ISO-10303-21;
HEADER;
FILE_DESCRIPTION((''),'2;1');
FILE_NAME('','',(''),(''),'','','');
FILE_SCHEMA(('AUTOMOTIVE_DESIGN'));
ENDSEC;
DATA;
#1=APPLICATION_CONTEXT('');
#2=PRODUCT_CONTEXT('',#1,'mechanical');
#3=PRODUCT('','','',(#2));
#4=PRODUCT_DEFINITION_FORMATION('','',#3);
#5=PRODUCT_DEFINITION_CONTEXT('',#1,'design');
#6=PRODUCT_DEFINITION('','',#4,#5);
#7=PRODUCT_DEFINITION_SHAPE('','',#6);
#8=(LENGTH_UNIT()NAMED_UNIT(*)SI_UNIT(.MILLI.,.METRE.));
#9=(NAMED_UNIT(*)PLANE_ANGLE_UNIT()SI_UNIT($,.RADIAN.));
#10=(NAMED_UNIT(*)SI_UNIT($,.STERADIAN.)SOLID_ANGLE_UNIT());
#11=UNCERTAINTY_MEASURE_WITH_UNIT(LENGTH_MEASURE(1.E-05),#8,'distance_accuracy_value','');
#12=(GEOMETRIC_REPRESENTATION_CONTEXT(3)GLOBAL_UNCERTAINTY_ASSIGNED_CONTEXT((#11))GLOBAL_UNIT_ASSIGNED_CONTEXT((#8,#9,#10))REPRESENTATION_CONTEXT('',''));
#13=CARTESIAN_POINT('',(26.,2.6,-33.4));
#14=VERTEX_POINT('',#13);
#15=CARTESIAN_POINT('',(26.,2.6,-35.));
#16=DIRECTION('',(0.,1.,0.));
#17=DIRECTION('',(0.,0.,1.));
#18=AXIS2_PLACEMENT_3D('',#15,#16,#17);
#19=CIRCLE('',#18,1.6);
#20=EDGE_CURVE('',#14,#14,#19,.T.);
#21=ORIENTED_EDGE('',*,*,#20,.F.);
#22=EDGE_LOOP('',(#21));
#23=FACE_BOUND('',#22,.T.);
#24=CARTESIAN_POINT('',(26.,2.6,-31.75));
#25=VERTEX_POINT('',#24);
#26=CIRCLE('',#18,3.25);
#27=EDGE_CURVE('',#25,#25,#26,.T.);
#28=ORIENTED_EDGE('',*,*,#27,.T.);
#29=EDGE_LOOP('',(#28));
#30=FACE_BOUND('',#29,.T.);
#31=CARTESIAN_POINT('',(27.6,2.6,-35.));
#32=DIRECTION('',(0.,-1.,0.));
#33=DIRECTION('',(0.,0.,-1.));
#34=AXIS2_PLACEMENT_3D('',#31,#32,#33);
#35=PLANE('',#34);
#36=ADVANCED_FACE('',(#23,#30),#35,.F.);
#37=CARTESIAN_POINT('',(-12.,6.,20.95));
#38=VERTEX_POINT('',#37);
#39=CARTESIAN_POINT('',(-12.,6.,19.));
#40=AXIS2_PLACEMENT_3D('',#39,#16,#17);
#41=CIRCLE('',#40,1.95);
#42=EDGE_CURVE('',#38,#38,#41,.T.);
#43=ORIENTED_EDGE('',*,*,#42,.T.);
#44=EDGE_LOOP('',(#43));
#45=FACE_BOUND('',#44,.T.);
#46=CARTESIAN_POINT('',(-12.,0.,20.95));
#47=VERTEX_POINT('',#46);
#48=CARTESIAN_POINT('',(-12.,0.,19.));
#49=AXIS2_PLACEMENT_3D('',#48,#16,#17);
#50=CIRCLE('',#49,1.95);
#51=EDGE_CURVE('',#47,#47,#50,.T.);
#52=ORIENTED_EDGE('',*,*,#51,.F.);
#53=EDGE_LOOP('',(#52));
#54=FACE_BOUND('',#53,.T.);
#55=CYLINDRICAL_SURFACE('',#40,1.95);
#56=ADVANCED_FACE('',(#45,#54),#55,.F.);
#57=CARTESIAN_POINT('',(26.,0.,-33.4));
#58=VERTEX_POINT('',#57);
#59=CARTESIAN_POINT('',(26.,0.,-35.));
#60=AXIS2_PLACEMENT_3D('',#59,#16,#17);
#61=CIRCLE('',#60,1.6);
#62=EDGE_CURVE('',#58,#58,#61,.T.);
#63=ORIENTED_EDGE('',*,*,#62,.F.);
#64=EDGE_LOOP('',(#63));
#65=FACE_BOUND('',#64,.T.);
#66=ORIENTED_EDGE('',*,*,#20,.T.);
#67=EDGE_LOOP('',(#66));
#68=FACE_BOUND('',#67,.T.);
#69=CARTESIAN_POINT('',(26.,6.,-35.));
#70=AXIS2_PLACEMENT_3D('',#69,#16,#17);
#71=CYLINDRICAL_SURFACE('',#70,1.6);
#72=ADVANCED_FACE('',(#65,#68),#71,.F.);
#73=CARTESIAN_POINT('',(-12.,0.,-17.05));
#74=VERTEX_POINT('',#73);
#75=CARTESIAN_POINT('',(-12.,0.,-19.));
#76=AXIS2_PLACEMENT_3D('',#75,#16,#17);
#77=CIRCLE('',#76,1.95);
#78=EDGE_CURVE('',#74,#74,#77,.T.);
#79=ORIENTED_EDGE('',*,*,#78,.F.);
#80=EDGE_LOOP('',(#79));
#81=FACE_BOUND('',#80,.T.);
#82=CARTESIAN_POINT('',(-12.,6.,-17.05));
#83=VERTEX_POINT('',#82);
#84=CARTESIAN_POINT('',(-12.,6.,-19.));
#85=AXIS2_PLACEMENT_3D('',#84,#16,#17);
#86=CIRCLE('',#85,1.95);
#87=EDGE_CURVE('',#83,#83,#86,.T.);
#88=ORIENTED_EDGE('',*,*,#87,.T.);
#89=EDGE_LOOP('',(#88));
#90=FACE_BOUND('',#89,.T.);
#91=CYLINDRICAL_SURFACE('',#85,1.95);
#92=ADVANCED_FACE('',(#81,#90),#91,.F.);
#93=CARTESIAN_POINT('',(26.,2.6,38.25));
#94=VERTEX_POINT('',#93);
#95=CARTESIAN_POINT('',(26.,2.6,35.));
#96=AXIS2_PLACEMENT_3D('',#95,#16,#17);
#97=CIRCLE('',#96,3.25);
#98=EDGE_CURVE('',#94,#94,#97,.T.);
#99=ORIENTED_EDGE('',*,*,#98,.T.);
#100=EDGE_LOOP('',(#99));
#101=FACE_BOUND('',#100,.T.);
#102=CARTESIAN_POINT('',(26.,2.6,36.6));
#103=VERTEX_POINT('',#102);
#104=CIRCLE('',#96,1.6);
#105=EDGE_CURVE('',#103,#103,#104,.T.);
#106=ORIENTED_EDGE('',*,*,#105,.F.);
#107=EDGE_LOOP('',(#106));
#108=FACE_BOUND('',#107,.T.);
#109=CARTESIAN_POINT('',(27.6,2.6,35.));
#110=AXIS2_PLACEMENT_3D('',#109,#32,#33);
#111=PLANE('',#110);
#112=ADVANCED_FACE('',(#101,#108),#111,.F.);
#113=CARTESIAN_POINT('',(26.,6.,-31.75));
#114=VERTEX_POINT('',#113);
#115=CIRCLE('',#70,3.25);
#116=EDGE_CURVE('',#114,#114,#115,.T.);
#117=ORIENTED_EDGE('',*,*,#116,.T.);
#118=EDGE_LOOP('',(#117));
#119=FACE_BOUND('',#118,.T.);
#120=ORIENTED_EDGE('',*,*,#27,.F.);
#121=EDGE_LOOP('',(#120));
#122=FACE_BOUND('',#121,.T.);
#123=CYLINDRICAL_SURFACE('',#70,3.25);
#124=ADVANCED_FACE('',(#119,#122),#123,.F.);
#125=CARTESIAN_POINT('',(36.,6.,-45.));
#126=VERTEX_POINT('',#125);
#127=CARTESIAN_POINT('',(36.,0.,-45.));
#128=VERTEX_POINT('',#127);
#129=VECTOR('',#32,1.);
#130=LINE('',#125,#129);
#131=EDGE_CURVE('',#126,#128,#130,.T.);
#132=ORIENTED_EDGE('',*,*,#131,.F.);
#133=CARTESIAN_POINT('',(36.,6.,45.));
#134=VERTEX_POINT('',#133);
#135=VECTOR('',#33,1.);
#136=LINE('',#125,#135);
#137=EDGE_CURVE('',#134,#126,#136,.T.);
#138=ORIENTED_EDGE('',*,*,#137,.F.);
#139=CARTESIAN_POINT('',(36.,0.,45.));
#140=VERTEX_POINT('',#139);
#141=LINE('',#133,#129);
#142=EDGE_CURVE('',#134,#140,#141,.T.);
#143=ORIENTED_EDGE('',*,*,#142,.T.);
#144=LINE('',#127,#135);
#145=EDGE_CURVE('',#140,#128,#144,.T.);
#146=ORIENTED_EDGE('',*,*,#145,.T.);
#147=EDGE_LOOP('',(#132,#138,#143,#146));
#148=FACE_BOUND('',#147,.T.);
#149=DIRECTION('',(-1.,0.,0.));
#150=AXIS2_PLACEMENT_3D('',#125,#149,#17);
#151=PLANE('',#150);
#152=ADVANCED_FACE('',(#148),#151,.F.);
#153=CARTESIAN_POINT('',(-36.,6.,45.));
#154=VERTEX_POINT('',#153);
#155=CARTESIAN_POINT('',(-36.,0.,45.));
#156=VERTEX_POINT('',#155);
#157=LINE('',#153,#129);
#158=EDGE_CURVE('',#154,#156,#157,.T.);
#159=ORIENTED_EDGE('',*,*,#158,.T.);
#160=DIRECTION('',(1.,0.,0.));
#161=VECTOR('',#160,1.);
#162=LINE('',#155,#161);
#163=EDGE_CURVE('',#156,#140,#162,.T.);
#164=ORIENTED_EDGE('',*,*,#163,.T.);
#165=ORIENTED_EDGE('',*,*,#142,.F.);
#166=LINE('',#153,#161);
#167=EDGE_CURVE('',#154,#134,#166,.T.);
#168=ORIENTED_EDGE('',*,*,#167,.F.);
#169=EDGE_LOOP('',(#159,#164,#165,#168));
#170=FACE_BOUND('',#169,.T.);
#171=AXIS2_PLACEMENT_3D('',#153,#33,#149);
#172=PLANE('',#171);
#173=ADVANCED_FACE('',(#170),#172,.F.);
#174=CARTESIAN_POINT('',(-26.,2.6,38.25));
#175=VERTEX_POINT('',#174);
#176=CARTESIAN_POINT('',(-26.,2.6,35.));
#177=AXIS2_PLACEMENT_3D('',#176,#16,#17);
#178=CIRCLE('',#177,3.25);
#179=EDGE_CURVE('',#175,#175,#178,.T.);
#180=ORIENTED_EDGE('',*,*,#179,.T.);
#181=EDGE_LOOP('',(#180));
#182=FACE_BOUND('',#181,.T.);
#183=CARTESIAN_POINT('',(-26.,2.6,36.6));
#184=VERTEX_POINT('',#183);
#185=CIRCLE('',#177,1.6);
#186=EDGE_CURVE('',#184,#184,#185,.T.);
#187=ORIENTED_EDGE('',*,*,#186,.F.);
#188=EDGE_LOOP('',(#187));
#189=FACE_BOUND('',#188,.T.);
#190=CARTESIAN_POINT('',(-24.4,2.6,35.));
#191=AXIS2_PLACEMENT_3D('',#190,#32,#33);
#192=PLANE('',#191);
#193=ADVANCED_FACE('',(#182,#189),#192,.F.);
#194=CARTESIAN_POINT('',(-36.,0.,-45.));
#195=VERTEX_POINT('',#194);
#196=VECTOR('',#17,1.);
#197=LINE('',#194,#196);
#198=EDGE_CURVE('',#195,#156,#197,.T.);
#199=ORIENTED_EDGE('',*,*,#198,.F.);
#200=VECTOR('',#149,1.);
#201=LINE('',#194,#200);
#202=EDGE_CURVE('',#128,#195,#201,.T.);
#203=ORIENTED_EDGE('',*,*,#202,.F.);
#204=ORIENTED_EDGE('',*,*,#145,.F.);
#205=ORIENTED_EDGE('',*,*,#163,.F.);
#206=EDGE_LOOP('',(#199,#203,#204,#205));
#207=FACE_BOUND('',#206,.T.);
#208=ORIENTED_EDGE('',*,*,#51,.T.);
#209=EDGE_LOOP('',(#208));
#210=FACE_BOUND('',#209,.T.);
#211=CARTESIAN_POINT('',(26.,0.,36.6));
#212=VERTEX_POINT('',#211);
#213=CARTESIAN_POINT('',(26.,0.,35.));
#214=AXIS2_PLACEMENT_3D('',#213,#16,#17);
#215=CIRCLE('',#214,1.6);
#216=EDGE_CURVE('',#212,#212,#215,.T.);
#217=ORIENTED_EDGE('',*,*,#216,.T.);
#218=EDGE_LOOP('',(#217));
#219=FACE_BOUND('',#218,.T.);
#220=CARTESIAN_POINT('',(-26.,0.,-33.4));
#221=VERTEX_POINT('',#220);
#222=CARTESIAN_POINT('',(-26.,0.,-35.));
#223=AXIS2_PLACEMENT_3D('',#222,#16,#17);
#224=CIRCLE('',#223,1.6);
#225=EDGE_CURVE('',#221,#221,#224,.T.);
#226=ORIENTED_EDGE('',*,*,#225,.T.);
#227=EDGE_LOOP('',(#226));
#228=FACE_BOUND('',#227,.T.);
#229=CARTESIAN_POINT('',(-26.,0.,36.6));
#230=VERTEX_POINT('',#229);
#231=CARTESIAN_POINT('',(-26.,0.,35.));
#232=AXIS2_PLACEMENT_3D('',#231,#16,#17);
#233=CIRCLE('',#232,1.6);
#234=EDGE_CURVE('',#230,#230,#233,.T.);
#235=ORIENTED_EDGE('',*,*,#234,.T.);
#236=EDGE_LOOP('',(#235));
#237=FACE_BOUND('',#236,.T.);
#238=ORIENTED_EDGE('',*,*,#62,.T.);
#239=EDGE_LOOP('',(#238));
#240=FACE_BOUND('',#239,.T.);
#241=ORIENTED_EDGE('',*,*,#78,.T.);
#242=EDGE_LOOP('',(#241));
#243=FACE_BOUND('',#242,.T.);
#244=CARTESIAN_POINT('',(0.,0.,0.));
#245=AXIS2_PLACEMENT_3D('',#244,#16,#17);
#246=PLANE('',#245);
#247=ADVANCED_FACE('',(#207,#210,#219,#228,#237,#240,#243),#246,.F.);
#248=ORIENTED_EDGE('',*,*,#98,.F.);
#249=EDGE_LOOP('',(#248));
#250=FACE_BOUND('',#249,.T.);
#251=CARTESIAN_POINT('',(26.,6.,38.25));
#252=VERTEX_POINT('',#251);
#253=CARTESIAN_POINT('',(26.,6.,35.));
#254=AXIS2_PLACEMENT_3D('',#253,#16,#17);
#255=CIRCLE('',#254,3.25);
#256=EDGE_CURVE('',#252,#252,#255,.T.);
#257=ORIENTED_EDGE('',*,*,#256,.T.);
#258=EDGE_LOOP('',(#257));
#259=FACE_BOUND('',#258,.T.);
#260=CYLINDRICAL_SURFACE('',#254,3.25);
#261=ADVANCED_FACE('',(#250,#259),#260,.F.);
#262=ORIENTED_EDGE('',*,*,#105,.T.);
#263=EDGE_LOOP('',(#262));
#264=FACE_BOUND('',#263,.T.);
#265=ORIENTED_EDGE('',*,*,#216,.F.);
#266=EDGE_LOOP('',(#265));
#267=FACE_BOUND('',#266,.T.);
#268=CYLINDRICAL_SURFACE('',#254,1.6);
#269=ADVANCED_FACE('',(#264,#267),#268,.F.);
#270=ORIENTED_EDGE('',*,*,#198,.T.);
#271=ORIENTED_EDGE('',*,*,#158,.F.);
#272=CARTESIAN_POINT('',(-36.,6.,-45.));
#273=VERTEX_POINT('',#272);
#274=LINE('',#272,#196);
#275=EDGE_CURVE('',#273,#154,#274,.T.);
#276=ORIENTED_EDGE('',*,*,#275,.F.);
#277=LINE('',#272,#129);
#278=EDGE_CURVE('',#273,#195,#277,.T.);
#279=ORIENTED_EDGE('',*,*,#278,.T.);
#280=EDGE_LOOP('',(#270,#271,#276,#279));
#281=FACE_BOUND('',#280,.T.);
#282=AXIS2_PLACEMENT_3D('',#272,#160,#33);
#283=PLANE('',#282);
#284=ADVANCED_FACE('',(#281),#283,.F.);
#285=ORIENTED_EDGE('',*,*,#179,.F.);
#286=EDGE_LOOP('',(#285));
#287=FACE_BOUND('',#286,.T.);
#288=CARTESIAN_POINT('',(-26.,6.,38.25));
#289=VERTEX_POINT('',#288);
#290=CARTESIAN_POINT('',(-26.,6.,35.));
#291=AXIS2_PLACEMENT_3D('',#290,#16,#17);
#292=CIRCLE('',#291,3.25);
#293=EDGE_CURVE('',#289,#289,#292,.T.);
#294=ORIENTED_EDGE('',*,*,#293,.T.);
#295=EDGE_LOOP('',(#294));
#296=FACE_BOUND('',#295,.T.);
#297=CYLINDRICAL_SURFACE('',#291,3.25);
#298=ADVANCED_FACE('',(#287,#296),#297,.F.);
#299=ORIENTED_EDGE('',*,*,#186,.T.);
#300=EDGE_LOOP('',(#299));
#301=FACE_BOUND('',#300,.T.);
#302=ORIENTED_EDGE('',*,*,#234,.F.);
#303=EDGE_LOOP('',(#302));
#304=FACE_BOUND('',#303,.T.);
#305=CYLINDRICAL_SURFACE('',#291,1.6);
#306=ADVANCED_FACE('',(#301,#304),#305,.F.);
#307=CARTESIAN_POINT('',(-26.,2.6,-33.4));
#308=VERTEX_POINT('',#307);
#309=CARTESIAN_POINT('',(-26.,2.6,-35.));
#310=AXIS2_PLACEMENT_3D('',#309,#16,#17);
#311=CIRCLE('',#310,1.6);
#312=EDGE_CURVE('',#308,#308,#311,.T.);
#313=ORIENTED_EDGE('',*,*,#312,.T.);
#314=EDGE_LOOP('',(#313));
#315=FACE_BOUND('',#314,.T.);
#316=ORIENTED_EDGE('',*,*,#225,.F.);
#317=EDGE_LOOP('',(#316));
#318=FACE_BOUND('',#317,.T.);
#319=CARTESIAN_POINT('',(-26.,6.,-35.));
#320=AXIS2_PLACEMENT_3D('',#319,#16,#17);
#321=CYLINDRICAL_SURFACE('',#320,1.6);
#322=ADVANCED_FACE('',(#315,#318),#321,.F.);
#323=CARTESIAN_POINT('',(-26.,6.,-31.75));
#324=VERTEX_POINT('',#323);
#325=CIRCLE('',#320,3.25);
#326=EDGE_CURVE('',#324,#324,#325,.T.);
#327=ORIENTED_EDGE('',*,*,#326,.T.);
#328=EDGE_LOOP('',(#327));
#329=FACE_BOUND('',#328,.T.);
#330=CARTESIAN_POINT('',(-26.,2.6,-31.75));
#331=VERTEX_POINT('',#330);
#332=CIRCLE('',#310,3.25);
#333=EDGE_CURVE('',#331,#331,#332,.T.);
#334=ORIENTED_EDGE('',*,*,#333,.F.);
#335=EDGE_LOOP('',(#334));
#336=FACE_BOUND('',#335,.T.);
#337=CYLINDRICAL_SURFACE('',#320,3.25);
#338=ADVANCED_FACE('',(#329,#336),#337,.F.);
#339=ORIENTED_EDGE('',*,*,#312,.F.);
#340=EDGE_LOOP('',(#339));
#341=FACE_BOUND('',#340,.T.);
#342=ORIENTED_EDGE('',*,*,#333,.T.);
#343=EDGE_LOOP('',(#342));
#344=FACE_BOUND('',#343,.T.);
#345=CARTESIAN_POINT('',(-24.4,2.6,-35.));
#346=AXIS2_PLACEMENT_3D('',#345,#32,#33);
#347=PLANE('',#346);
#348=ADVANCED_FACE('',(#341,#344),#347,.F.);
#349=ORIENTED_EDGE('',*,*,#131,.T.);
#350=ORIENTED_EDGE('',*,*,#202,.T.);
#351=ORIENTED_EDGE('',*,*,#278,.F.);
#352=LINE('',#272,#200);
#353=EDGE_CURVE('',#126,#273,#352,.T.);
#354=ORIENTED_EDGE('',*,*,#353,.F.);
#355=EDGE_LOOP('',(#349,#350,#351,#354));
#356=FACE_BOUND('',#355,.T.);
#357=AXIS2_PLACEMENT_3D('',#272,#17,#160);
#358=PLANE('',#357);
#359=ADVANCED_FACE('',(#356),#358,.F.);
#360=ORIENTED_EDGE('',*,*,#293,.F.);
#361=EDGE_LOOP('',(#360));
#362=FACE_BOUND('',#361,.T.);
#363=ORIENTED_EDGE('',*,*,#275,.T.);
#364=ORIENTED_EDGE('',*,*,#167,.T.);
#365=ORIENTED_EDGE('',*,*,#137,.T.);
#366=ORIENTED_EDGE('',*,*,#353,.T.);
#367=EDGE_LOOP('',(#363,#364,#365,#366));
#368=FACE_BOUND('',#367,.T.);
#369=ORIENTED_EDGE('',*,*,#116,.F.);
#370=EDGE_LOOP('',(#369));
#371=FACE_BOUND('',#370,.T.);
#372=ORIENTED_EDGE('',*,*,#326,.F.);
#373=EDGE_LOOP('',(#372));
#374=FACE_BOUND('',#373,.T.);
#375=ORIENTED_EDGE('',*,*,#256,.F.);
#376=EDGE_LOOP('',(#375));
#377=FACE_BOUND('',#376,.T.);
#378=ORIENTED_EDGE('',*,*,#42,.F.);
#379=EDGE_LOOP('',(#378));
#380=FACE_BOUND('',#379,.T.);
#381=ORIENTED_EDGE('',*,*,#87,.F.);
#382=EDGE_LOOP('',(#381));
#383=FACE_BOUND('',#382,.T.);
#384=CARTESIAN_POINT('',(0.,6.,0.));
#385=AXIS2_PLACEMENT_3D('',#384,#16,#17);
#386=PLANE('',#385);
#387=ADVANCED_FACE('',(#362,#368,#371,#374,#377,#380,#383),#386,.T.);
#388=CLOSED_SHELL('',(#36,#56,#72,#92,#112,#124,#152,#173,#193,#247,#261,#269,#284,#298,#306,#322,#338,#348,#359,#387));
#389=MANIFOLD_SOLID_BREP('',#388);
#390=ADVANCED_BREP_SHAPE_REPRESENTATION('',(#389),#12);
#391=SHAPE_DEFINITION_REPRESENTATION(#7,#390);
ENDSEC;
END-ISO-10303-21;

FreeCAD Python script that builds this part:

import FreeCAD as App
import Part
import Sketcher

V = App.Vector

doc = App.newDocument("Part")
body = doc.addObject("PartDesign::Body", "Body")

sketch1 = body.newObject("Sketcher::SketchObject", "Sketch")
sketch1.AttachmentSupport = (doc.getObject("XZ_Plane"), [""])
sketch1.MapMode = "FlatFace"
sketch1.addGeometry([
    Part.LineSegment(V(-36, -45, 0), V(-36, 45, 0)),
    Part.LineSegment(V(-36, 45, 0), V(36, 45, 0)),
    Part.LineSegment(V(36, 45, 0), V(36, -45, 0)),
    Part.LineSegment(V(36, -45, 0), V(-36, -45, 0)),
], False)
sketch1.addConstraint([
    Sketcher.Constraint("Coincident", 0, 2, 1, 1),
    Sketcher.Constraint("Coincident", 1, 2, 2, 1),
    Sketcher.Constraint("Coincident", 2, 2, 3, 1),
    Sketcher.Constraint("Coincident", 3, 2, 0, 1),
    Sketcher.Constraint("Vertical", 0),
    Sketcher.Constraint("Horizontal", 1),
    Sketcher.Constraint("Vertical", 2),
    Sketcher.Constraint("Horizontal", 3),
    Sketcher.Constraint("Symmetric", 0, 2, 2, 2, -1, 1),
    Sketcher.Constraint("DistanceX", 1, 1, 1, 2, 72.0),
    Sketcher.Constraint("DistanceY", 0, 1, 0, 2, 90.0),
])
pad1 = body.newObject("PartDesign::Pad", "Pad")
pad1.Profile = sketch1
pad1.Length = 6
pad1.Reversed = True

sketch2 = body.newObject("Sketcher::SketchObject", "Sketch001")
sketch2.AttachmentSupport = (doc.getObject("XZ_Plane"), [""])
sketch2.MapMode = "FlatFace"
sketch2.AttachmentOffset = App.Placement(V(0, 0, -6), App.Rotation())
sketch2.addGeometry([
    Part.Circle(V(-26, -35, 0), V(0, 0, 1), 1.6),
    Part.Circle(V(26, -35, 0), V(0, 0, 1), 1.6),
    Part.Circle(V(26, 35, 0), V(0, 0, 1), 1.6),
    Part.Circle(V(-26, 35, 0), V(0, 0, 1), 1.6),
], False)
sketch2.addConstraint([
    Sketcher.Constraint("Equal", 0, 1),
    Sketcher.Constraint("Equal", 1, 2),
    Sketcher.Constraint("Equal", 2, 3),
    Sketcher.Constraint("Symmetric", 0, 3, 2, 3, -1, 1),
    Sketcher.Constraint("Symmetric", 1, 3, 3, 3, -1, 1),
    Sketcher.Constraint("Symmetric", 0, 3, 1, 3, -2),
    Sketcher.Constraint("Diameter", 0, 3.2),
    Sketcher.Constraint("DistanceX", 0, 3, -1, 1, 26.0),
    Sketcher.Constraint("DistanceY", 0, 3, -1, 1, 35.0),
])
doc.recompute()
hole = body.newObject("PartDesign::Hole", "Hole")
hole.Profile = sketch2
hole.ThreadType = "None"
hole.Diameter = 3.2
hole.DepthType = "Dimension"
hole.Depth = 7.7
hole.DrillPoint = "Angled"
hole.DrillPointAngle = 118
hole.HoleCutType = "Counterbore"
hole.HoleCutDiameter = 6.5
hole.HoleCutDepth = 3.4
hole.Reversed = True

sketch3 = body.newObject("Sketcher::SketchObject", "Sketch002")
sketch3.AttachmentSupport = (doc.getObject("XZ_Plane"), [""])
sketch3.MapMode = "FlatFace"
sketch3.AttachmentOffset = App.Placement(V(0, 0, -6), App.Rotation())
sketch3.addGeometry([
    Part.Circle(V(-12, 19, 0), V(0, 0, 1), 1.9),
    Part.Circle(V(-12, -19, 0), V(0, 0, 1), 1.9),
], False)
sketch3.addConstraint([
    Sketcher.Constraint("Equal", 0, 1),
    Sketcher.Constraint("Symmetric", 0, 3, 1, 3, -1),
    Sketcher.Constraint("Diameter", 0, 3.9),
    Sketcher.Constraint("DistanceX", 0, 3, -1, 1, 12.0),
    Sketcher.Constraint("DistanceY", -1, 1, 0, 3, 19.0),
])
doc.recompute()
hole2 = body.newObject("PartDesign::Hole", "Hole001")
hole2.Profile = sketch3
hole2.ThreadType = "None"
hole2.Diameter = 3.9
hole2.DepthType = "ThroughAll"
hole2.Reversed = True

doc.recompute()
